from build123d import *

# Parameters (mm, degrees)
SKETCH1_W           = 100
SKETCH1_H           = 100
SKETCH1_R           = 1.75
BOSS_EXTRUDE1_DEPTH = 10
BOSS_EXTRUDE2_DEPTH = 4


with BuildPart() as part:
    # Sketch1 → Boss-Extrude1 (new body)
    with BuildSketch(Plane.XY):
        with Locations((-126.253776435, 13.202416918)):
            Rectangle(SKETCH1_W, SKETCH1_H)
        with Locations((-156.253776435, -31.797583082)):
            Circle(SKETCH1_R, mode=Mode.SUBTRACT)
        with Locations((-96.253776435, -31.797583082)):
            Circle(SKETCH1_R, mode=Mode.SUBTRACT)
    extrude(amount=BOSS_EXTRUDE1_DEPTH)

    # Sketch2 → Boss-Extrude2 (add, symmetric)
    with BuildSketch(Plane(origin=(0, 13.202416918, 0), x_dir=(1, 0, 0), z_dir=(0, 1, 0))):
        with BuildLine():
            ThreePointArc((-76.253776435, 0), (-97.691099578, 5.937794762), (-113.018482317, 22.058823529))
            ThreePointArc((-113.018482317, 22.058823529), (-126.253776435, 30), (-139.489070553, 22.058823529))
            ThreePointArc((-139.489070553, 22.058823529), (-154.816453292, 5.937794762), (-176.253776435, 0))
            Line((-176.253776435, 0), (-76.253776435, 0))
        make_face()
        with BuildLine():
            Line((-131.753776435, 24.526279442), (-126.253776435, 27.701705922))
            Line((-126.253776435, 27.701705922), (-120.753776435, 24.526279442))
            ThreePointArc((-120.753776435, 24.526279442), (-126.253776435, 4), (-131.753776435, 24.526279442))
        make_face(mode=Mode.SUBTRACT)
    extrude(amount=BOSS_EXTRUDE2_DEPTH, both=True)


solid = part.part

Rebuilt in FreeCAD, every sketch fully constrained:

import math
import FreeCAD as App
import Part
import Sketcher
Q = App.Units.Quantity


def add_polygon(sketch, points):
    """Adds a closed chain of lines whose ends are joined by coincident constraints."""
    first, n = sketch.GeometryCount, len(points)
    for a, b in zip(points, points[1:] + points[:1]):
        sketch.addGeometry(Part.LineSegment(App.Vector(*a, 0), App.Vector(*b, 0)), False)
    for i in range(n):
        sketch.addConstraint(Sketcher.Constraint("Coincident", first + i, 2, first + (i + 1) % n, 1))

doc = App.newDocument("Part")
params = doc.addObject("Spreadsheet::Sheet", "Params")
for row, (alias, value) in enumerate([
    ("sketch1_diameter", "3.5 mm"),
    ("sketch1_width", "100 mm"),
    ("pad1_length", "10 mm"),
    ("sketch2_radius", "15 mm"),
    ("sketch2_radius2", "11 mm"),
    ("sketch2_width", "100 mm"),
    ("pad2_length", "8 mm"),
], start=1):
    params.set(f"A{row}", alias)
    params.set(f"B{row}", "=" + value)
    params.setAlias(f"B{row}", alias)

body = doc.addObject("PartDesign::Body", "Body")

sketch1 = body.newObject("Sketcher::SketchObject", "Sketch")
sketch1.AttachmentSupport = (doc.getObject("XY_Plane"), [""])
sketch1.MapMode = "FlatFace"
add_polygon(sketch1, [(-176.3, 63.2), (-176.3, -36.8), (-76.3, -36.8), (-76.3, 63.2)])
sketch1.addGeometry(Part.Circle(App.Vector(-156.3, -31.8, 0), App.Vector(0, 0, 1), 1.8), False)
sketch1.addGeometry(Part.Circle(App.Vector(-96.3, -31.8, 0), App.Vector(0, 0, 1), 1.8), False)
sketch1.addConstraint([
    Sketcher.Constraint("Vertical", 0),
    Sketcher.Constraint("Horizontal", 1),
    Sketcher.Constraint("Vertical", 2),
    Sketcher.Constraint("Horizontal", 3),
    Sketcher.Constraint("Equal", 4, 5),
    Sketcher.Constraint("Horizontal", 4, 3, 5, 3),
    Sketcher.Constraint("Equal", 3, 0),
    Sketcher.Constraint("Diameter", 4, Q("3.5 mm")),
    Sketcher.Constraint("DistanceX", 1, 1, 1, 2, Q("100 mm")),
    Sketcher.Constraint("DistanceX", 4, 3, 5, 3, Q("60 mm")),
    Sketcher.Constraint("DistanceX", 0, 2, 4, 3, Q("20 mm")),
    Sketcher.Constraint("DistanceY", 0, 2, 4, 3, Q("5 mm")),
    Sketcher.Constraint("DistanceX", 4, 3, -1, 1, Q("156.253776 mm")),
    Sketcher.Constraint("DistanceY", 4, 3, -1, 1, Q("31.797583 mm")),
])
sketch1.setExpression("Constraints[11]", "Params.sketch1_diameter")
sketch1.setExpression("Constraints[12]", "Params.sketch1_width")
pad1 = body.newObject("PartDesign::Pad", "Pad")
pad1.Profile = sketch1
pad1.setExpression("Length", "Params.pad1_length")

sketch2 = body.newObject("Sketcher::SketchObject", "Sketch001")
sketch2.AttachmentSupport = (doc.getObject("XZ_Plane"), [""])
sketch2.MapMode = "FlatFace"
sketch2.AttachmentOffset = App.Placement(App.Vector(0, 0, -13.202417), App.Rotation())
sketch2.addGeometry([
    Part.ArcOfCircle(Part.Circle(App.Vector(-76, -42, 0), App.Vector(0, 0, 1), 42), math.radians(90), math.radians(152)),
    Part.ArcOfCircle(Part.Circle(App.Vector(-126, -15, 0), App.Vector(0, 0, 1), 15), math.radians(-152), math.radians(-28)),
    Part.ArcOfCircle(Part.Circle(App.Vector(-176, -42, 0), App.Vector(0, 0, 1), 42), math.radians(28), math.radians(90)),
    Part.LineSegment(App.Vector(-176, 0, 0), App.Vector(-76, 0, 0)),
    Part.ArcOfCircle(Part.Circle(App.Vector(-126, -15, 0), App.Vector(0, 0, 1), 11), math.radians(-60), math.radians(240)),
    Part.LineSegment(App.Vector(-132, -25, 0), App.Vector(-126, -28, 0)),
    Part.LineSegment(App.Vector(-126, -28, 0), App.Vector(-121, -25, 0)),
], False)
sketch2.addConstraint([
    Sketcher.Constraint("Tangent", 0, 2, 1, 2),
    Sketcher.Constraint("Tangent", 1, 1, 2, 1),
    Sketcher.Constraint("Tangent", 2, 2, 3, 1),
    Sketcher.Constraint("Tangent", 3, 2, 0, 1),
    Sketcher.Constraint("Tangent", 4, 2, 5, 1),
    Sketcher.Constraint("Coincident", 5, 2, 6, 1),
    Sketcher.Constraint("Tangent", 6, 2, 4, 1),
    Sketcher.Constraint("Horizontal", 3),
    Sketcher.Constraint("Coincident", 4, 3, 1, 3),
    Sketcher.Constraint("Equal", 0, 2),
    Sketcher.Constraint("PointOnObject", 2, 2, -1),
    Sketcher.Constraint("Horizontal", 4, 2, 6, 2),
    Sketcher.Constraint("Radius", 1, Q("15 mm")),
    Sketcher.Constraint("Radius", 4, Q("11 mm")),
    Sketcher.Constraint("DistanceX", 3, 1, 3, 2, Q("100 mm")),
    Sketcher.Constraint("Angle", 5, Q("-30 deg")),
    Sketcher.Constraint("DistanceY", 1, 3, -1, 1, Q("15 mm")),
    Sketcher.Constraint("DistanceX", 1, 1, -1, 1, Q("139.489071 mm")),
])
sketch2.setExpression("Constraints[12]", "Params.sketch2_radius")
sketch2.setExpression("Constraints[13]", "Params.sketch2_radius2")
sketch2.setExpression("Constraints[14]", "Params.sketch2_width")
pad2 = body.newObject("PartDesign::Pad", "Pad001")
pad2.Profile = sketch2
pad2.setExpression("Length", "Params.pad2_length")
pad2.Midplane = True

doc.recompute()
